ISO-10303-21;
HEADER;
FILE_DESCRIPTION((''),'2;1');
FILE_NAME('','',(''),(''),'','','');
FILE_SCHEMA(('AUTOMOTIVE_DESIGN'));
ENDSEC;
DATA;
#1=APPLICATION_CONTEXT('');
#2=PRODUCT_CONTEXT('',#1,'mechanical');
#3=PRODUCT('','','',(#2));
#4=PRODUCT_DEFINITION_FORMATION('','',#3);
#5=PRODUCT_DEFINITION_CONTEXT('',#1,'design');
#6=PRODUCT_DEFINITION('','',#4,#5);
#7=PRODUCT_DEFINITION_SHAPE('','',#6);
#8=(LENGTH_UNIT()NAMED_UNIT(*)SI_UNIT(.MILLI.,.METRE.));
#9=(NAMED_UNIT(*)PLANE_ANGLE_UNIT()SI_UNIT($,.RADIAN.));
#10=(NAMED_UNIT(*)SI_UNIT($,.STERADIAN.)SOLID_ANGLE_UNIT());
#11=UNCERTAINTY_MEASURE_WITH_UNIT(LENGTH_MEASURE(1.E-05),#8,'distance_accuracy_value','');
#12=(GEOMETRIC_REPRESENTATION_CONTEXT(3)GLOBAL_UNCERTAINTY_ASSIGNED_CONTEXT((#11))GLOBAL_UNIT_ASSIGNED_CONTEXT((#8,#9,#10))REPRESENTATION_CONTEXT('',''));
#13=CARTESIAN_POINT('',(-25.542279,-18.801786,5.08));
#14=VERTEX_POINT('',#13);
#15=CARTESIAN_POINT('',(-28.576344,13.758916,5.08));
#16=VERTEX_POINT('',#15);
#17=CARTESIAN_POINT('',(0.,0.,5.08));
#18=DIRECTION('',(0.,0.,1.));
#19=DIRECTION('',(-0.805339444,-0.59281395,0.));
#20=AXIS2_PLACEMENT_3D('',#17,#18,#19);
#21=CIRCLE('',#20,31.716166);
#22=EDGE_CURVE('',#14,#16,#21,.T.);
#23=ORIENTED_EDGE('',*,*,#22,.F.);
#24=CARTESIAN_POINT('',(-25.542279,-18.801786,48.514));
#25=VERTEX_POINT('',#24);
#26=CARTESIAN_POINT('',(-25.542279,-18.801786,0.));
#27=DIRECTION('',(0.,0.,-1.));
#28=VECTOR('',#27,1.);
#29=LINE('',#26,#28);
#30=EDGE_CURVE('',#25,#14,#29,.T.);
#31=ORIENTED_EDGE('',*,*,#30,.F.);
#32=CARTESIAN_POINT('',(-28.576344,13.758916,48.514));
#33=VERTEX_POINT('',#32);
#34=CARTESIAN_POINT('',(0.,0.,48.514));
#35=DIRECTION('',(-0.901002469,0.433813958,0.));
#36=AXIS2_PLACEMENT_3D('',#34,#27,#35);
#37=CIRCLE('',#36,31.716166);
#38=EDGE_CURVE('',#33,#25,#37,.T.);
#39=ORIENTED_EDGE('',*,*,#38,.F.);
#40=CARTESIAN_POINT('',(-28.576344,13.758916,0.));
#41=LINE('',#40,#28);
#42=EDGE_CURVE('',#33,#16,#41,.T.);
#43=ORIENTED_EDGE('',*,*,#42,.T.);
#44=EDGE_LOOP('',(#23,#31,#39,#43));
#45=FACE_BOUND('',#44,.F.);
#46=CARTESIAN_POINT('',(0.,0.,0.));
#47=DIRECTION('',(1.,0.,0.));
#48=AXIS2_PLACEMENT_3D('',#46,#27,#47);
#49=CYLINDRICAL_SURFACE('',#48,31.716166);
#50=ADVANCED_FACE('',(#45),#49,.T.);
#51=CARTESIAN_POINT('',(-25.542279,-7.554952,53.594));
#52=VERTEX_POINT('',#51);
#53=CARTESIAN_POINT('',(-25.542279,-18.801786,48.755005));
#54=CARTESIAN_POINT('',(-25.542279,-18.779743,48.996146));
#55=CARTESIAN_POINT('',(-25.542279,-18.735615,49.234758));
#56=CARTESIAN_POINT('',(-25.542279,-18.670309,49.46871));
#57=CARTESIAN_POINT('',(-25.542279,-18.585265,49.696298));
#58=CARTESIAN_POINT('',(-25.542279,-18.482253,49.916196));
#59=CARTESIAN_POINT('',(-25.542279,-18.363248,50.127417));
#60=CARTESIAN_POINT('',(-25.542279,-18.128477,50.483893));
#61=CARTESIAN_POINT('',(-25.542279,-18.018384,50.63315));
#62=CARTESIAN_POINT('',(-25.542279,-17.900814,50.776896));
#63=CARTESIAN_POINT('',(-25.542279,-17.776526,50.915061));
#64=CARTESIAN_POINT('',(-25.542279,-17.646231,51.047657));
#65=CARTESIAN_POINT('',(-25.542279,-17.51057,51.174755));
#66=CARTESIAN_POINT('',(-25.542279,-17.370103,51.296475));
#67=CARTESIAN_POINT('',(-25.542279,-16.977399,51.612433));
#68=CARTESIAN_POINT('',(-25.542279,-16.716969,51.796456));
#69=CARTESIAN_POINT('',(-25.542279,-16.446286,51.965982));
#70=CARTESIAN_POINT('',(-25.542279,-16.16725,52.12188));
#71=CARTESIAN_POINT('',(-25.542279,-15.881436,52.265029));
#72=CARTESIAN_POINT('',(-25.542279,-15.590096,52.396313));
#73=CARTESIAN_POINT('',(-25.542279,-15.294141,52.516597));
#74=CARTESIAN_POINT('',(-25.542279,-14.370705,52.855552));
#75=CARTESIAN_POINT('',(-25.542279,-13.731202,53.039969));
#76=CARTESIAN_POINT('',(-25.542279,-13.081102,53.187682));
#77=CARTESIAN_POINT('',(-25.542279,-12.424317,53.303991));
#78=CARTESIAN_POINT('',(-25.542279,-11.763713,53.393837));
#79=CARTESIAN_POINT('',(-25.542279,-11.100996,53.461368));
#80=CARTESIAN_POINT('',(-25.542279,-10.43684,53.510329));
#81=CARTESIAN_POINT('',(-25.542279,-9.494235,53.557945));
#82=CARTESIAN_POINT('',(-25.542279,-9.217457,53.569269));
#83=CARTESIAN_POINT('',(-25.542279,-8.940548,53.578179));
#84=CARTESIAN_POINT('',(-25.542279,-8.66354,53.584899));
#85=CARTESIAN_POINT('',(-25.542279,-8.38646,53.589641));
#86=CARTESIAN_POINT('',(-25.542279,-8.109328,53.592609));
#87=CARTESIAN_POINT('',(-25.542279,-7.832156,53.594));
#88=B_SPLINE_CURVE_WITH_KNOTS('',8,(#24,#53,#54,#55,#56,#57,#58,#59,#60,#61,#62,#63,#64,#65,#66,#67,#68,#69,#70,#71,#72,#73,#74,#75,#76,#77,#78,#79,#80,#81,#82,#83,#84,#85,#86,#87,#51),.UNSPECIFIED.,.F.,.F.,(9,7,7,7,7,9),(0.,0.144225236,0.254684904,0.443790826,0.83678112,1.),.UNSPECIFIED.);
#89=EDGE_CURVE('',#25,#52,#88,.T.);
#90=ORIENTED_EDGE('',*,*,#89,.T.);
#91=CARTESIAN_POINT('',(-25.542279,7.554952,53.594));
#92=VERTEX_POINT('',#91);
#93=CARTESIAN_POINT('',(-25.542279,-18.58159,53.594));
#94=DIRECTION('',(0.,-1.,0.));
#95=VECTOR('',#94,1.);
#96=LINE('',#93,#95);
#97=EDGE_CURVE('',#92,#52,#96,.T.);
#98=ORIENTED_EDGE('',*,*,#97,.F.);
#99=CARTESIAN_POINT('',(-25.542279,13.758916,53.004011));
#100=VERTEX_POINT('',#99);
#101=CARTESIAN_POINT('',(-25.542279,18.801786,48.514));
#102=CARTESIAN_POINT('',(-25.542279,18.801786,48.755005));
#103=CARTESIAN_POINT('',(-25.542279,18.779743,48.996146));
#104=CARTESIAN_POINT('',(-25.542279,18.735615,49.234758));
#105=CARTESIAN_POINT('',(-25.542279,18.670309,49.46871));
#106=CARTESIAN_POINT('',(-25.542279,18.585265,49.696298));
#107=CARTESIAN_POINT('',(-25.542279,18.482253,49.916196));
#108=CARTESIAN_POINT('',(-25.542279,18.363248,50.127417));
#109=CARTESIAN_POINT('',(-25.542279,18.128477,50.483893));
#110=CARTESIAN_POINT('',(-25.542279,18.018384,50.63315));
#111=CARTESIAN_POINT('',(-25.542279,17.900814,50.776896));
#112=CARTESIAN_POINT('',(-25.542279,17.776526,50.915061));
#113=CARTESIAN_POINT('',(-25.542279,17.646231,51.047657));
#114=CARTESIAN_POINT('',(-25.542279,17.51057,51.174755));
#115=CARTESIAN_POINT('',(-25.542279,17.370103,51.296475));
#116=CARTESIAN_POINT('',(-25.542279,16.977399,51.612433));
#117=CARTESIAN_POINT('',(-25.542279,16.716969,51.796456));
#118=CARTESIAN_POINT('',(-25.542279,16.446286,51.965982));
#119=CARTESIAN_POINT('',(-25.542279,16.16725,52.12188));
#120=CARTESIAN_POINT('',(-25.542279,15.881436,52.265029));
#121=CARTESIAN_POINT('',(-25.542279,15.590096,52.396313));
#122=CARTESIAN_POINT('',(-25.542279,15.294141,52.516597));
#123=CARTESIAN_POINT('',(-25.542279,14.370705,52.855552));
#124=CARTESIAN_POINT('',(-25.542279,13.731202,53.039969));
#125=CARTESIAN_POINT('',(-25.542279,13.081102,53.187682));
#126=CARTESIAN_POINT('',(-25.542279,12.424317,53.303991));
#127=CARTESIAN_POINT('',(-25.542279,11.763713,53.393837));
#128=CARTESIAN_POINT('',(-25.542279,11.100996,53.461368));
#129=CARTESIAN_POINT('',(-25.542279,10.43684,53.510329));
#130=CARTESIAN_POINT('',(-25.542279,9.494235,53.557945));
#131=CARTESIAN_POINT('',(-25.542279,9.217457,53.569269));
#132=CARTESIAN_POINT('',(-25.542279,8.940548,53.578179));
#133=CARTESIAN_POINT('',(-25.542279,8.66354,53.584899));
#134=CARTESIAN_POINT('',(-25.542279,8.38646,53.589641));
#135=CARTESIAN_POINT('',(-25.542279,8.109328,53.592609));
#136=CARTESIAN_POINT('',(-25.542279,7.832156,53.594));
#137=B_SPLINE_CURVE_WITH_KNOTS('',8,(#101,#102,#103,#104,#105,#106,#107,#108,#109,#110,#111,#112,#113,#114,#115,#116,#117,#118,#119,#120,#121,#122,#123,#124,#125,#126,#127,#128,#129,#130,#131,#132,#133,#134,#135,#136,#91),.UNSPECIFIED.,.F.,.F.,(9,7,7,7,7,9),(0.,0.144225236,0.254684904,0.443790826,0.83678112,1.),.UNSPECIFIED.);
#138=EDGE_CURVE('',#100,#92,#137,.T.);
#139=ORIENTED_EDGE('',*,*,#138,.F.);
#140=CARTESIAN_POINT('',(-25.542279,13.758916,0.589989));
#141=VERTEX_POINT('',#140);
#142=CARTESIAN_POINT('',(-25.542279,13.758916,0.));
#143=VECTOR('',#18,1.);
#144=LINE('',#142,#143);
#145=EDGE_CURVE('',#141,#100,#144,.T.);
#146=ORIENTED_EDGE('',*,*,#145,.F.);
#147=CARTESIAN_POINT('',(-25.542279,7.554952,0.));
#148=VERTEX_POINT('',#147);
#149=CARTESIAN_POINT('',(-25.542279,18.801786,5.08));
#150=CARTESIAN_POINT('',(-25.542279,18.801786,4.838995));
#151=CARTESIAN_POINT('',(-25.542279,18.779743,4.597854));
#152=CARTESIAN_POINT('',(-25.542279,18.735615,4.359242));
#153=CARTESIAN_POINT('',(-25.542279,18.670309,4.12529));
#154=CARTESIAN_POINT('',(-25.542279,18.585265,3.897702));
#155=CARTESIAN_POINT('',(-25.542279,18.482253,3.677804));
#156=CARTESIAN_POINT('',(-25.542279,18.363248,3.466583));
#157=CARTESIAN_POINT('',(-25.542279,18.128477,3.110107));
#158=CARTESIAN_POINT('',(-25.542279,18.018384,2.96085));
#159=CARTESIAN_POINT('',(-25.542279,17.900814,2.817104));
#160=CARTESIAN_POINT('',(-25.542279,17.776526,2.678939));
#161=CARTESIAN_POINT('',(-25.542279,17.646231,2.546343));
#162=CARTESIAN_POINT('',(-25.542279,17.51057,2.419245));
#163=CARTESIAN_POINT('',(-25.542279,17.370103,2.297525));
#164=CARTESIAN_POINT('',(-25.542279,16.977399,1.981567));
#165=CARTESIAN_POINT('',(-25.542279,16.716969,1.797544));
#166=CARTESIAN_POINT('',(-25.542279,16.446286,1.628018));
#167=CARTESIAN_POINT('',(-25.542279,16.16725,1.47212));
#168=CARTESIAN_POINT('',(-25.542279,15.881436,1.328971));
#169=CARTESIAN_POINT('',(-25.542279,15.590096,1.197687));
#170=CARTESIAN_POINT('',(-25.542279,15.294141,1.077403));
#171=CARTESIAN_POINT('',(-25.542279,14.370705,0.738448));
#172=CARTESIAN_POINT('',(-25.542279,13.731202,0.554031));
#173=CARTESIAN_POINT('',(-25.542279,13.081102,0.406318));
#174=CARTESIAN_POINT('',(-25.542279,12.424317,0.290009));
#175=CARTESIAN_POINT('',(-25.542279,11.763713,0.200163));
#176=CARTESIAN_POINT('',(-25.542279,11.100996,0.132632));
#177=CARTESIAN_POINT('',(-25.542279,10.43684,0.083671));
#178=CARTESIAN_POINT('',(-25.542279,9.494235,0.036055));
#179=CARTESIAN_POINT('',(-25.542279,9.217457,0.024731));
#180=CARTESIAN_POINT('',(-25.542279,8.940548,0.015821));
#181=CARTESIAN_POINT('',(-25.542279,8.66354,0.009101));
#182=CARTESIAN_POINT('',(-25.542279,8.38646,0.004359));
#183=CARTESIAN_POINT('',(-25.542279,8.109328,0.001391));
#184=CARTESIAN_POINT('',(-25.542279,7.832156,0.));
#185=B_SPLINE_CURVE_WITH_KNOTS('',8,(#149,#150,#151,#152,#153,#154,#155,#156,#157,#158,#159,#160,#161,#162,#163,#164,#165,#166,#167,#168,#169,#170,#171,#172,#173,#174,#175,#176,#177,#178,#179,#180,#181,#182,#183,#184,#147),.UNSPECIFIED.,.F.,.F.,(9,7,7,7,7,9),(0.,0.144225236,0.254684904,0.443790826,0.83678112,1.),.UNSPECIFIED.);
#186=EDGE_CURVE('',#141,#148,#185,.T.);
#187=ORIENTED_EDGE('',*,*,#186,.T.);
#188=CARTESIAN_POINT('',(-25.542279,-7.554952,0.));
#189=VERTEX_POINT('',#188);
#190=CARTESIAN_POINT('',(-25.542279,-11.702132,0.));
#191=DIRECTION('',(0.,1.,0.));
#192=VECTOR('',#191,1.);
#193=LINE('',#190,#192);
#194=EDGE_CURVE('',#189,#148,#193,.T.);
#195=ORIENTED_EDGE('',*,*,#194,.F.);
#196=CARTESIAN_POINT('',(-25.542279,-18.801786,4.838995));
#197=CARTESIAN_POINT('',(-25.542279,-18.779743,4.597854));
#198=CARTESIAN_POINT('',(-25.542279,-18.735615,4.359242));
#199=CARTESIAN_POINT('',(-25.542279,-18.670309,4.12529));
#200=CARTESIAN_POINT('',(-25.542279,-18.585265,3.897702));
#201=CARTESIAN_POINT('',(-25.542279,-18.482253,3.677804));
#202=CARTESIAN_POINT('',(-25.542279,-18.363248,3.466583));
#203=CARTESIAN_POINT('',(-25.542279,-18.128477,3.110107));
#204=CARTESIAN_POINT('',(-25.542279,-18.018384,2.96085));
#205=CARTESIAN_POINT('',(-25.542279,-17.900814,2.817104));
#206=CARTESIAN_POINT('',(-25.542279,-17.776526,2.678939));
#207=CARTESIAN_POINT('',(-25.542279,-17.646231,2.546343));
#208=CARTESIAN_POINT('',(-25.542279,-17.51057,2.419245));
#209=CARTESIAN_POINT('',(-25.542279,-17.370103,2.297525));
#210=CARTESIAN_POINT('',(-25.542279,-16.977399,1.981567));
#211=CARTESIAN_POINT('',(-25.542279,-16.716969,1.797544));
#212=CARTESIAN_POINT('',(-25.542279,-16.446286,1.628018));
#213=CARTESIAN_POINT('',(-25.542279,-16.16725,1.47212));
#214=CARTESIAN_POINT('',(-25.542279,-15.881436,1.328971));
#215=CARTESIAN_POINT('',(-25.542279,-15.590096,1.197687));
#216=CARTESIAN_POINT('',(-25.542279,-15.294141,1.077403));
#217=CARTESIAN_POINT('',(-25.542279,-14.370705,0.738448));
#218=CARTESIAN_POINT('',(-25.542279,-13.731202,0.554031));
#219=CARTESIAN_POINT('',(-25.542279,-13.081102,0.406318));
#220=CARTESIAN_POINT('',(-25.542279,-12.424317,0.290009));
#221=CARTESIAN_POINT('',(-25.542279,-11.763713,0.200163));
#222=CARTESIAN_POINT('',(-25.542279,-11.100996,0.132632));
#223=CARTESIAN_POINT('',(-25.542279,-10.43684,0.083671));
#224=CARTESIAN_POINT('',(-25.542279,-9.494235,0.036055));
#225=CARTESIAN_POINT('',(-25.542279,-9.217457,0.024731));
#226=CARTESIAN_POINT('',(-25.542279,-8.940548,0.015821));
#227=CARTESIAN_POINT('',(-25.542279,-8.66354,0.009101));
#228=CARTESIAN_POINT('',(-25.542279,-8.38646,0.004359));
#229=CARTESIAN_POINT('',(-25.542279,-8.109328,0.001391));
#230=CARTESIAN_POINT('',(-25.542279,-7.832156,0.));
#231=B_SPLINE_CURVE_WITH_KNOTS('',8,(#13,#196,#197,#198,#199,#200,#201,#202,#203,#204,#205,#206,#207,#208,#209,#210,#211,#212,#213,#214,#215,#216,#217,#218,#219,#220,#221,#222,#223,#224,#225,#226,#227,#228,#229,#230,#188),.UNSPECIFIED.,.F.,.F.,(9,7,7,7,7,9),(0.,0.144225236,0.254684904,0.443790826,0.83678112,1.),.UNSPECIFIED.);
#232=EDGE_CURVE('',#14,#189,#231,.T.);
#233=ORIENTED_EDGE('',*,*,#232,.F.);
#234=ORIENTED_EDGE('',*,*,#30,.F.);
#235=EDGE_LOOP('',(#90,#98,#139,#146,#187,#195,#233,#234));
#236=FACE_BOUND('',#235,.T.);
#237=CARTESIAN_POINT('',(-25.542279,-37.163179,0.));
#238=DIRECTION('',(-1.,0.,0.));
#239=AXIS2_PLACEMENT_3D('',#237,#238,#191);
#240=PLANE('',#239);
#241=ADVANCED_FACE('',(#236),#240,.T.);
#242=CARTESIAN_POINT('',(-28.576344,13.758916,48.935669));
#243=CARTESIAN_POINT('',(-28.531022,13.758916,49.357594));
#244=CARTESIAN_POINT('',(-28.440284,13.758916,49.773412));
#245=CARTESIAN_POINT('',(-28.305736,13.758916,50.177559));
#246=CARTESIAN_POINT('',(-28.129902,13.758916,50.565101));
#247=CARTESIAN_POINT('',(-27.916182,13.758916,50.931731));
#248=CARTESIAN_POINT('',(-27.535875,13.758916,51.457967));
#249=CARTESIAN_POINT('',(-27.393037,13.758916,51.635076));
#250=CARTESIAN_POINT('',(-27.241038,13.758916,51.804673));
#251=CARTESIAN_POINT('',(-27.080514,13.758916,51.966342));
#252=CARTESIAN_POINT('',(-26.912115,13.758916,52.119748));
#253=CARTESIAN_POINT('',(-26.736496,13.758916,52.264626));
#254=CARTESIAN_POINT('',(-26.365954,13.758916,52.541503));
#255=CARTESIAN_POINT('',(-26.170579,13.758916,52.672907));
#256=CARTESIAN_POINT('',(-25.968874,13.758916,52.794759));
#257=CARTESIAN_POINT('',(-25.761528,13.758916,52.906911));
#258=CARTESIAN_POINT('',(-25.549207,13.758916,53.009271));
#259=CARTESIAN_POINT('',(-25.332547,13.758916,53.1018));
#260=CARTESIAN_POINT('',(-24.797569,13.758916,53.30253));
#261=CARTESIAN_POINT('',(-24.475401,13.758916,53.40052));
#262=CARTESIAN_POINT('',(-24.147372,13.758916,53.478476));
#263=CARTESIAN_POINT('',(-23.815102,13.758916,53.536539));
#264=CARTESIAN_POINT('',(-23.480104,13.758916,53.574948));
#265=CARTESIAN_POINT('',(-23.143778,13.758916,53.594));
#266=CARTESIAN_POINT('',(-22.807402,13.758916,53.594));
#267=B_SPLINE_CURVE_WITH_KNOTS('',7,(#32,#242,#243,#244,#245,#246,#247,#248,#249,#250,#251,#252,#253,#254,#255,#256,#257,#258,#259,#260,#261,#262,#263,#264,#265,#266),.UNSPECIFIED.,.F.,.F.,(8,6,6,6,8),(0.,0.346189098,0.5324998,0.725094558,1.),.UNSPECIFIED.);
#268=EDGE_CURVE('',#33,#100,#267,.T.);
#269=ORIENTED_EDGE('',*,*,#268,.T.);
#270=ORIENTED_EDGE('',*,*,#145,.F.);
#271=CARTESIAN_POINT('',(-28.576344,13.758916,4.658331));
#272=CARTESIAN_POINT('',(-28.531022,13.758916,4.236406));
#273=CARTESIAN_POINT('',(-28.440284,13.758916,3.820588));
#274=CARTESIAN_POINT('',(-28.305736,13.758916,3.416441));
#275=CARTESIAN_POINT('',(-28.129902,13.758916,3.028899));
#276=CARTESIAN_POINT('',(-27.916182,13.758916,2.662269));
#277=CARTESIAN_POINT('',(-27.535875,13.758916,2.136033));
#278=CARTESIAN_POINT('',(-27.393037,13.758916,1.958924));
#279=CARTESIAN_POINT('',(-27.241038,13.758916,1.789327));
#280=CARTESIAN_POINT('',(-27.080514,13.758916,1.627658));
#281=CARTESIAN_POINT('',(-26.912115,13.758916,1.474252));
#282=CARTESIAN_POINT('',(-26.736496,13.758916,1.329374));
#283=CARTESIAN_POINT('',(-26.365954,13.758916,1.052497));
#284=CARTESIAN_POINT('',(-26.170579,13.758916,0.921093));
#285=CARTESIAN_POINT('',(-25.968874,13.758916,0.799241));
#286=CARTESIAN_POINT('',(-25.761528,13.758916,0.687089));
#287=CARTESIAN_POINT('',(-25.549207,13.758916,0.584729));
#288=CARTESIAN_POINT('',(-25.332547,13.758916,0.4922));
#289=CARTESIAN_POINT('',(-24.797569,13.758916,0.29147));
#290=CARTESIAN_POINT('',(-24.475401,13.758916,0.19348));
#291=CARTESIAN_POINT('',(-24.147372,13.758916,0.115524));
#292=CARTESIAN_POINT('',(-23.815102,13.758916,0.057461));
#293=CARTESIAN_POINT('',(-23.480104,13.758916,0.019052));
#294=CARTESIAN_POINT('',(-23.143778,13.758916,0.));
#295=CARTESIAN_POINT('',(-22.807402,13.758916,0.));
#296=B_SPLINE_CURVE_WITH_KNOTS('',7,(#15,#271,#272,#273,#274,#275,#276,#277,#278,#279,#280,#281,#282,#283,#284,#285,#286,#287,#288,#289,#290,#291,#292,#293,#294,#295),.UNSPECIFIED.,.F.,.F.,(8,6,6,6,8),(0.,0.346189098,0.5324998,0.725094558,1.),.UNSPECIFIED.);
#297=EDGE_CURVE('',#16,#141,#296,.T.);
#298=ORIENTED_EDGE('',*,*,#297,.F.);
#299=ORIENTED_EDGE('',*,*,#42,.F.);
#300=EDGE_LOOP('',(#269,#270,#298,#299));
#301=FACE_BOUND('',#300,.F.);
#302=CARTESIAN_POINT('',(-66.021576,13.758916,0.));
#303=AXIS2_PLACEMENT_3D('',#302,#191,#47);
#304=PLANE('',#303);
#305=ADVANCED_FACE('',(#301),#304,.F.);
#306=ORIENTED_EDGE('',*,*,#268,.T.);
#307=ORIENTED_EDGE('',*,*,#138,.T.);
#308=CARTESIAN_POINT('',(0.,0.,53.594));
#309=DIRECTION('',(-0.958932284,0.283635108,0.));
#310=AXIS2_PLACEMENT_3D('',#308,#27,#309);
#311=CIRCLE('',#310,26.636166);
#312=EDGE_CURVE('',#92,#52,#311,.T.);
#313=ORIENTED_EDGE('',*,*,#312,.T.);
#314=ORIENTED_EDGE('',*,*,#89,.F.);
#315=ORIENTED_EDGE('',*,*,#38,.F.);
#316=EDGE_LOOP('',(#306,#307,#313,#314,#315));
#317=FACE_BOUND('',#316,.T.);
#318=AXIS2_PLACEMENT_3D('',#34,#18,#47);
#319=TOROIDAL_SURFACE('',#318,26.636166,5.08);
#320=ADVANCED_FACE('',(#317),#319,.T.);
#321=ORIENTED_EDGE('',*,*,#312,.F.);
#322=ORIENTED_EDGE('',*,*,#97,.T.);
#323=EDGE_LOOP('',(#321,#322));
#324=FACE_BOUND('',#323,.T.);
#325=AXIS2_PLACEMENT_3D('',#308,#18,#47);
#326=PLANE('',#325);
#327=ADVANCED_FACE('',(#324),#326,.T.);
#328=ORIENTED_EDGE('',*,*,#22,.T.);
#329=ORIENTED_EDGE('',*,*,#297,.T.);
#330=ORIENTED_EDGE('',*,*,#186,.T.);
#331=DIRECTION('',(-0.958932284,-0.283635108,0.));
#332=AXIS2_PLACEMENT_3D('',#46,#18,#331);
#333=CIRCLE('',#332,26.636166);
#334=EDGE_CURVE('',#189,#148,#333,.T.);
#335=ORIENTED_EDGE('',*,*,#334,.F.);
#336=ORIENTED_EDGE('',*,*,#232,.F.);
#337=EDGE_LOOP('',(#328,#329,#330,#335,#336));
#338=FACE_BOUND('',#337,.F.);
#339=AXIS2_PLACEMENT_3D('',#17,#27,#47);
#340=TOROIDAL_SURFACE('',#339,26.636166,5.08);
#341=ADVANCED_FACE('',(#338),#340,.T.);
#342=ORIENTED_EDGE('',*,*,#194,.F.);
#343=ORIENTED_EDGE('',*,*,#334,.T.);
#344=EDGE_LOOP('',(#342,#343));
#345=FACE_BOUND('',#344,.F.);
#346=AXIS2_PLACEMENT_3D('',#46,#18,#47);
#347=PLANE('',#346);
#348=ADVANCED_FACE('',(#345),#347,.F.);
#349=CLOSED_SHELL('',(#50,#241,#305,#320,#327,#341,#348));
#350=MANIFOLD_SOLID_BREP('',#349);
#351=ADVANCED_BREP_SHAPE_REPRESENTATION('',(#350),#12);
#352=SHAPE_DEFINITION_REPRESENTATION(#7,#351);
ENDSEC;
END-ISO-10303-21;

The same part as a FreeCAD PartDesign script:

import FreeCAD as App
import Part
import Sketcher

V = App.Vector
Q = App.Units.Quantity


def edges_at(feature, points):
    """Names of the edges that pass closest to the given points."""
    edges = feature.Shape.Edges
    near = lambda p: min(range(len(edges)), key=lambda i: edges[i].distToShape(Part.Vertex(*p))[0])
    return sorted({f"Edge{near(p) + 1}" for p in points})


def add_polygon(sketch, points):
    """Adds a closed chain of lines whose ends are joined by coincident constraints."""
    first, n = sketch.GeometryCount, len(points)
    for a, b in zip(points, points[1:] + points[:1]):
        sketch.addGeometry(Part.LineSegment(App.Vector(*a, 0), App.Vector(*b, 0)), False)
    for i in range(n):
        sketch.addConstraint(Sketcher.Constraint("Coincident", first + i, 2, first + (i + 1) % n, 1))

doc = App.newDocument("Part")
body = doc.addObject("PartDesign::Body", "Body")

# Sketch on XY plane
sketch1 = body.newObject("Sketcher::SketchObject", "Sketch")
sketch1.AttachmentSupport = (doc.getObject("XY_Plane"), [""])
sketch1.MapMode = "FlatFace"
sketch1.addGeometry(Part.Circle(V(0, 0, 0), V(0, 0, 1), 32), False)
sketch1.addConstraint([
    Sketcher.Constraint("Coincident", 0, 3, -1, 1),
    Sketcher.Constraint("Diameter", 0, Q("63.432332 mm")),
])
pad1 = body.newObject("PartDesign::Pad", "Pad")
pad1.Profile = sketch1
pad1.Length = Q("2.11 in")
doc.recompute()

fillet = body.newObject("PartDesign::Fillet", "Fillet")
fillet.Base = (pad1, edges_at(pad1, [(-31.716, 0, 53.594), (-31.716, 0, 0)]))
fillet.Radius = Q("0.2 in")

# Sketch on XY plane
sketch2 = body.newObject("Sketcher::SketchObject", "Sketch001")
sketch2.AttachmentSupport = (doc.getObject("XY_Plane"), [""])
sketch2.MapMode = "FlatFace"
add_polygon(sketch2, [(-66, 14), (-66, -37), (-26, -37), (-26, 14)])  # lines 0-3
sketch2.addConstraint([
    Sketcher.Constraint("Vertical", 0),
    Sketcher.Constraint("Horizontal", 1),
    Sketcher.Constraint("Vertical", 2),
    Sketcher.Constraint("Horizontal", 3),
    Sketcher.Constraint("DistanceX", 1, 1, 1, 2, Q("40.479297 mm")),
    Sketcher.Constraint("DistanceY", 0, 2, 0, 1, Q("50.922095 mm")),
    Sketcher.Constraint("DistanceY", 0, 2, -1, 1, Q("37.163179 mm")),
    Sketcher.Constraint("DistanceX", 1, 2, -1, 1, Q("25.542279 mm")),
])
pocket1 = body.newObject("PartDesign::Pocket", "Pocket")
pocket1.Profile = sketch2
pocket1.Length = Q("5.22 in")
pocket1.Reversed = True

doc.recompute()
